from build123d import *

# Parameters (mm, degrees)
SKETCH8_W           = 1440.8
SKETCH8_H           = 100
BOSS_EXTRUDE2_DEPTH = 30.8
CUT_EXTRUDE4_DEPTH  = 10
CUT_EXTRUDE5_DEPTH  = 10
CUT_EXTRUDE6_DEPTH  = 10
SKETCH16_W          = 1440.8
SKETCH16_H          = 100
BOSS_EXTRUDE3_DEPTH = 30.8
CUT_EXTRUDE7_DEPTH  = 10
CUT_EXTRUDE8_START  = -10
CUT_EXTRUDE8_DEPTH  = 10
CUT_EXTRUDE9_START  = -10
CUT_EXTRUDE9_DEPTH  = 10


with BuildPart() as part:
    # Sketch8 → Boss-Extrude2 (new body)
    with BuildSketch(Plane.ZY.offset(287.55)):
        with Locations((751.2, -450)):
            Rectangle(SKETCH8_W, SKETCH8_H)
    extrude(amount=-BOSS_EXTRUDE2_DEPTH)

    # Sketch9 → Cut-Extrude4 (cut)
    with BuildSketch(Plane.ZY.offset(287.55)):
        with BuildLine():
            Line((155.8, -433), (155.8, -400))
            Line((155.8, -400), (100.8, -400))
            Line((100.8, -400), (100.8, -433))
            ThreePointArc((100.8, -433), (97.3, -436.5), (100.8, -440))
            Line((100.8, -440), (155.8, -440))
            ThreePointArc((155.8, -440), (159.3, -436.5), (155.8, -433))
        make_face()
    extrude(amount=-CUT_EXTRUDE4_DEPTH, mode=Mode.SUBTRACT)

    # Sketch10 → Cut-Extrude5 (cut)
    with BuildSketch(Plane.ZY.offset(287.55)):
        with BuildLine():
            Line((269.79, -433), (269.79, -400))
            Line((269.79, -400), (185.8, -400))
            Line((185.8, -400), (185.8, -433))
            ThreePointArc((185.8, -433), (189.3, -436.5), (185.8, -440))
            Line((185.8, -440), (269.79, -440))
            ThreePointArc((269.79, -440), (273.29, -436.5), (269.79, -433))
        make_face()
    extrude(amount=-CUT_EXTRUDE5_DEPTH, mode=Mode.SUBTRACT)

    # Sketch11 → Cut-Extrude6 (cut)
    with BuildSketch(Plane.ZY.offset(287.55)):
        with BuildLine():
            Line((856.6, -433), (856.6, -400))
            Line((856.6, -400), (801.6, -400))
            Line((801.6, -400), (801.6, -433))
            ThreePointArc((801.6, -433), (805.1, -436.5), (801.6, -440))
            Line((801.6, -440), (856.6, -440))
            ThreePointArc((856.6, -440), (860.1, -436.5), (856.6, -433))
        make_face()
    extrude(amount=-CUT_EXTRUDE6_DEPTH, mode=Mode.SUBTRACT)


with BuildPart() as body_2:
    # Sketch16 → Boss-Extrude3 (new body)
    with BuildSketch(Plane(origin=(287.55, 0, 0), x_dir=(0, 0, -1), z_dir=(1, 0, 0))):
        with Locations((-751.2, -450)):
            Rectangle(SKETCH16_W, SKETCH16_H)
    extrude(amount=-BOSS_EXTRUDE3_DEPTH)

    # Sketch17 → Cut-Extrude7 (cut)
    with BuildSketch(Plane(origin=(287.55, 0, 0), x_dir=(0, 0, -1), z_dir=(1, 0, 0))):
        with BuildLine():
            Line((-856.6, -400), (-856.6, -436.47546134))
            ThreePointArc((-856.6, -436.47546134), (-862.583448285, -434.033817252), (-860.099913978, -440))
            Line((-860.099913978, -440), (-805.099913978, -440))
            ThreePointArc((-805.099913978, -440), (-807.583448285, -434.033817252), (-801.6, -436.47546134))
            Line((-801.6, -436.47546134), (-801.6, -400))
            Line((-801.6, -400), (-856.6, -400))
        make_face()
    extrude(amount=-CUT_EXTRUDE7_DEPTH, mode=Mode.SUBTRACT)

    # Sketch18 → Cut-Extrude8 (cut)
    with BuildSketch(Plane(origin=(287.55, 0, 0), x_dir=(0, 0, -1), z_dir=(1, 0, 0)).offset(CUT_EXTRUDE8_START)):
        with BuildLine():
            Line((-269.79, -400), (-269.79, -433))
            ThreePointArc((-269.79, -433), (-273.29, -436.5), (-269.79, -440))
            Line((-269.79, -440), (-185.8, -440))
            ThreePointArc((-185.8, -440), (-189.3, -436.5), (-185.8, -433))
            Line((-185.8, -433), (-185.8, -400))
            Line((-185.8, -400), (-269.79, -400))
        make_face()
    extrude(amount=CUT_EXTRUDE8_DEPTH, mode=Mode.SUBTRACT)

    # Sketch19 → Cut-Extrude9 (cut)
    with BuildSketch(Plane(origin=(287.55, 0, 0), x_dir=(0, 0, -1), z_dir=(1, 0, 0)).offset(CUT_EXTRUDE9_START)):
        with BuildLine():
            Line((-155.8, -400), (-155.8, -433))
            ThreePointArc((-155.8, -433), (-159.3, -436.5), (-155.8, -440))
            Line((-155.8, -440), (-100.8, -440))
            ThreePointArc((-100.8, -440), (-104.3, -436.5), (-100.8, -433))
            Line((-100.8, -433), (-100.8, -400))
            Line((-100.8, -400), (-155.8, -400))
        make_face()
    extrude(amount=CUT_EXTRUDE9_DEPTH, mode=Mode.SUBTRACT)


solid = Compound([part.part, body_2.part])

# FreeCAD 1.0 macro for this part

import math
import FreeCAD as App
import Part
import Sketcher

V = App.Vector
Q = App.Units.Quantity


def add_polygon(sketch, points):
    """Adds a closed chain of lines whose ends are joined by coincident constraints."""
    first, n = sketch.GeometryCount, len(points)
    for a, b in zip(points, points[1:] + points[:1]):
        sketch.addGeometry(Part.LineSegment(App.Vector(*a, 0), App.Vector(*b, 0)), False)
    for i in range(n):
        sketch.addConstraint(Sketcher.Constraint("Coincident", first + i, 2, first + (i + 1) % n, 1))

doc = App.newDocument("Part")
body = doc.addObject("PartDesign::Body", "Body")

sketch1 = doc.addObject("Sketcher::SketchObject", "Sketch")
body.addObject(sketch1)
sketch1.AttachmentSupport = (doc.YZ_Plane, [""])
sketch1.MapMode = "FlatFace"
sketch1.AttachmentOffset = App.Placement(V(0, 0, -287.55), App.Rotation())
add_polygon(sketch1, [(-400, 30.8), (-500, 30.8), (-500, 1471.6), (-400, 1471.6)])
sketch1.addConstraint([
    Sketcher.Constraint("Horizontal", 0),
    Sketcher.Constraint("Vertical", 1),
    Sketcher.Constraint("Horizontal", 2),
    Sketcher.Constraint("Vertical", 3),
    Sketcher.Constraint("DistanceX", 0, 2, 0, 1, Q("100 mm")),
    Sketcher.Constraint("DistanceY", 1, 1, 1, 2, Q("1440.8 mm")),
    Sketcher.Constraint("DistanceX", 0, 2, -1, 1, Q("500 mm")),
    Sketcher.Constraint("DistanceY", -1, 1, 0, 2, Q("30.8 mm")),
])
pad1 = doc.addObject("PartDesign::Pad", "Pad")
body.addObject(pad1)
pad1.Profile = sketch1
pad1.Length = 30.8

sketch2 = doc.addObject("Sketcher::SketchObject", "Sketch001")
body.addObject(sketch2)
sketch2.AttachmentSupport = (doc.YZ_Plane, [""])
sketch2.MapMode = "FlatFace"
sketch2.AttachmentOffset = App.Placement(V(0, 0, -287.55), App.Rotation())
sketch2.addGeometry([
    Part.LineSegment(V(-433, 155.8, 0), V(-400, 155.8, 0)),
    Part.LineSegment(V(-400, 155.8, 0), V(-400, 100.8, 0)),
    Part.LineSegment(V(-400, 100.8, 0), V(-433, 100.8, 0)),
    Part.ArcOfCircle(Part.Circle(V(-436.5, 100.8, 0), V(0, 0, 1), 3.5), math.radians(180), math.radians(360)),
    Part.LineSegment(V(-440, 100.8, 0), V(-440, 155.8, 0)),
    Part.ArcOfCircle(Part.Circle(V(-436.5, 155.8, 0), V(0, 0, 1), 3.5), math.radians(0), math.radians(180)),
], False)
sketch2.addConstraint([
    Sketcher.Constraint("Coincident", 0, 2, 1, 1),
    Sketcher.Constraint("Coincident", 1, 2, 2, 1),
    Sketcher.Constraint("Coincident", 2, 2, 3, 2),
    Sketcher.Constraint("Tangent", 3, 1, 4, 1),
    Sketcher.Constraint("Tangent", 4, 2, 5, 2),
    Sketcher.Constraint("Coincident", 5, 1, 0, 1),
    Sketcher.Constraint("Horizontal", 0),
    Sketcher.Constraint("Vertical", 1),
    Sketcher.Constraint("Horizontal", 2),
    Sketcher.Constraint("Vertical", 4),
    Sketcher.Constraint("Equal", 3, 5),
    Sketcher.Constraint("Horizontal", 5, 3, 0, 2),
    Sketcher.Constraint("Horizontal", 3, 3, 1, 2),
    Sketcher.Constraint("Radius", 3, Q("3.5 mm")),
    Sketcher.Constraint("DistanceX", 0, 1, 0, 2, Q("33 mm")),
    Sketcher.Constraint("DistanceY", 1, 2, 1, 1, Q("55 mm")),
    Sketcher.Constraint("DistanceX", 0, 2, -1, 1, Q("400 mm")),
    Sketcher.Constraint("DistanceY", -1, 1, 3, 3, Q("100.8 mm")),
])
pocket1 = doc.addObject("PartDesign::Pocket", "Pocket")
body.addObject(pocket1)
pocket1.Profile = sketch2
pocket1.Length = 10
pocket1.Reversed = True

sketch3 = doc.addObject("Sketcher::SketchObject", "Sketch002")
body.addObject(sketch3)
sketch3.AttachmentSupport = (doc.YZ_Plane, [""])
sketch3.MapMode = "FlatFace"
sketch3.AttachmentOffset = App.Placement(V(0, 0, -287.55), App.Rotation())
sketch3.addGeometry([
    Part.LineSegment(V(-433, 269.79, 0), V(-400, 269.79, 0)),
    Part.LineSegment(V(-400, 269.79, 0), V(-400, 185.8, 0)),
    Part.LineSegment(V(-400, 185.8, 0), V(-433, 185.8, 0)),
    Part.ArcOfCircle(Part.Circle(V(-436.5, 185.8, 0), V(0, 0, 1), 3.5), math.radians(0), math.radians(180)),
    Part.LineSegment(V(-440, 185.8, 0), V(-440, 269.79, 0)),
    Part.ArcOfCircle(Part.Circle(V(-436.5, 269.79, 0), V(0, 0, 1), 3.5), math.radians(0), math.radians(180)),
], False)
sketch3.addConstraint([
    Sketcher.Constraint("Coincident", 0, 2, 1, 1),
    Sketcher.Constraint("Coincident", 1, 2, 2, 1),
    Sketcher.Constraint("Coincident", 2, 2, 3, 1),
    Sketcher.Constraint("Tangent", 3, 2, 4, 1),
    Sketcher.Constraint("Tangent", 4, 2, 5, 2),
    Sketcher.Constraint("Coincident", 5, 1, 0, 1),
    Sketcher.Constraint("Horizontal", 0),
    Sketcher.Constraint("Vertical", 1),
    Sketcher.Constraint("Horizontal", 2),
    Sketcher.Constraint("Vertical", 4),
    Sketcher.Constraint("Equal", 3, 5),
    Sketcher.Constraint("Horizontal", 5, 3, 0, 2),
    Sketcher.Constraint("Horizontal", 3, 3, 1, 2),
    Sketcher.Constraint("Radius", 3, Q("3.5 mm")),
    Sketcher.Constraint("DistanceX", 0, 1, 0, 2, Q("33 mm")),
    Sketcher.Constraint("DistanceX", 0, 2, -1, 1, Q("400 mm")),
    Sketcher.Constraint("DistanceY", 1, 2, 1, 1, Q("83.99 mm")),
    Sketcher.Constraint("DistanceY", -1, 1, 3, 3, Q("185.8 mm")),
])
pocket2 = doc.addObject("PartDesign::Pocket", "Pocket001")
body.addObject(pocket2)
pocket2.Profile = sketch3
pocket2.Length = 10
pocket2.Reversed = True

sketch4 = doc.addObject("Sketcher::SketchObject", "Sketch003")
body.addObject(sketch4)
sketch4.AttachmentSupport = (doc.YZ_Plane, [""])
sketch4.MapMode = "FlatFace"
sketch4.AttachmentOffset = App.Placement(V(0, 0, -287.55), App.Rotation())
sketch4.addGeometry([
    Part.LineSegment(V(-433, 856.6, 0), V(-400, 856.6, 0)),
    Part.LineSegment(V(-400, 856.6, 0), V(-400, 801.6, 0)),
    Part.LineSegment(V(-400, 801.6, 0), V(-433, 801.6, 0)),
    Part.ArcOfCircle(Part.Circle(V(-436.5, 801.6, 0), V(0, 0, 1), 3.5), math.radians(0), math.radians(180)),
    Part.LineSegment(V(-440, 801.6, 0), V(-440, 856.6, 0)),
    Part.ArcOfCircle(Part.Circle(V(-436.5, 856.6, 0), V(0, 0, 1), 3.5), math.radians(0), math.radians(180)),
], False)
sketch4.addConstraint([
    Sketcher.Constraint("Coincident", 0, 2, 1, 1),
    Sketcher.Constraint("Coincident", 1, 2, 2, 1),
    Sketcher.Constraint("Coincident", 2, 2, 3, 1),
    Sketcher.Constraint("Tangent", 3, 2, 4, 1),
    Sketcher.Constraint("Tangent", 4, 2, 5, 2),
    Sketcher.Constraint("Coincident", 5, 1, 0, 1),
    Sketcher.Constraint("Horizontal", 0),
    Sketcher.Constraint("Vertical", 1),
    Sketcher.Constraint("Horizontal", 2),
    Sketcher.Constraint("Vertical", 4),
    Sketcher.Constraint("Equal", 3, 5),
    Sketcher.Constraint("Horizontal", 5, 3, 0, 2),
    Sketcher.Constraint("Horizontal", 3, 3, 1, 2),
    Sketcher.Constraint("Radius", 3, Q("3.5 mm")),
    Sketcher.Constraint("DistanceX", 0, 1, 0, 2, Q("33 mm")),
    Sketcher.Constraint("DistanceY", 1, 2, 1, 1, Q("55 mm")),
    Sketcher.Constraint("DistanceX", 0, 2, -1, 1, Q("400 mm")),
    Sketcher.Constraint("DistanceY", -1, 1, 3, 3, Q("801.6 mm")),
])
pocket3 = doc.addObject("PartDesign::Pocket", "Pocket002")
body.addObject(pocket3)
pocket3.Profile = sketch4
pocket3.Length = 10
pocket3.Reversed = True
body2 = doc.addObject("PartDesign::Body", "Body001")

sketch5 = doc.addObject("Sketcher::SketchObject", "Sketch004")
body2.addObject(sketch5)
sketch5.AttachmentSupport = (doc.getObject("YZ_Plane001"), [""])
sketch5.MapMode = "FlatFace"
sketch5.AttachmentOffset = App.Placement(V(0, 0, 287.55), App.Rotation())
add_polygon(sketch5, [(-400, 1471.6), (-500, 1471.6), (-500, 30.8), (-400, 30.8)])
sketch5.addConstraint([
    Sketcher.Constraint("Horizontal", 0),
    Sketcher.Constraint("Vertical", 1),
    Sketcher.Constraint("Horizontal", 2),
    Sketcher.Constraint("Vertical", 3),
    Sketcher.Constraint("DistanceX", 0, 2, 0, 1, Q("100 mm")),
    Sketcher.Constraint("DistanceY", 1, 2, 1, 1, Q("1440.8 mm")),
    Sketcher.Constraint("DistanceX", 0, 2, -1, 1, Q("500 mm")),
    Sketcher.Constraint("DistanceY", -1, 1, 0, 2, Q("1471.6 mm")),
])
pad2 = doc.addObject("PartDesign::Pad", "Pad001")
body2.addObject(pad2)
pad2.Profile = sketch5
pad2.Length = 30.8
pad2.Reversed = True

sketch6 = doc.addObject("Sketcher::SketchObject", "Sketch005")
body2.addObject(sketch6)
sketch6.AttachmentSupport = (doc.getObject("YZ_Plane001"), [""])
sketch6.MapMode = "FlatFace"
sketch6.AttachmentOffset = App.Placement(V(0, 0, 287.55), App.Rotation())
sketch6.addGeometry([
    Part.LineSegment(V(-400, 856.6, 0), V(-436.475461, 856.6, 0)),
    Part.ArcOfCircle(Part.Circle(V(-436.5, 860.099914, 0), V(0, 0, 1), 3.5), math.radians(-89.598293), math.radians(180)),
    Part.LineSegment(V(-440, 860.099914, 0), V(-440, 805.099914, 0)),
    Part.ArcOfCircle(Part.Circle(V(-436.5, 805.099914, 0), V(0, 0, 1), 3.5), math.radians(-89.598293), math.radians(180)),
    Part.LineSegment(V(-436.475461, 801.6, 0), V(-400, 801.6, 0)),
    Part.LineSegment(V(-400, 801.6, 0), V(-400, 856.6, 0)),
], False)
sketch6.addConstraint([
    Sketcher.Constraint("Coincident", 0, 2, 1, 1),
    Sketcher.Constraint("Tangent", 1, 2, 2, 1),
    Sketcher.Constraint("Tangent", 2, 2, 3, 2),
    Sketcher.Constraint("Coincident", 3, 1, 4, 1),
    Sketcher.Constraint("Coincident", 4, 2, 5, 1),
    Sketcher.Constraint("Coincident", 5, 2, 0, 1),
    Sketcher.Constraint("Horizontal", 0),
    Sketcher.Constraint("Vertical", 2),
    Sketcher.Constraint("Horizontal", 4),
    Sketcher.Constraint("Vertical", 5),
    Sketcher.Constraint("Equal", 1, 3),
    Sketcher.Constraint("Vertical", 0, 2, 3, 1),
    Sketcher.Constraint("Radius", 1, Q("3.5 mm")),
    Sketcher.Constraint("DistanceY", 2, 2, 2, 1, Q("55 mm")),
    Sketcher.Constraint("DistanceX", 1, 2, -1, 1, Q("440 mm")),
    Sketcher.Constraint("DistanceX", 4, 2, -1, 1, Q("400 mm")),
    Sketcher.Constraint("DistanceY", -1, 1, 0, 2, Q("856.6 mm")),
    Sketcher.Constraint("DistanceX", 0, 2, 0, 1, Q("36.475461 mm")),
])
pocket4 = doc.addObject("PartDesign::Pocket", "Pocket003")
body2.addObject(pocket4)
pocket4.Profile = sketch6
pocket4.Length = 10

sketch7 = doc.addObject("Sketcher::SketchObject", "Sketch006")
body2.addObject(sketch7)
sketch7.AttachmentSupport = (doc.getObject("YZ_Plane001"), [""])
sketch7.MapMode = "FlatFace"
sketch7.AttachmentOffset = App.Placement(V(0, 0, 277.55), App.Rotation())
sketch7.addGeometry([
    Part.LineSegment(V(-400, 269.79, 0), V(-433, 269.79, 0)),
    Part.ArcOfCircle(Part.Circle(V(-436.5, 269.79, 0), V(0, 0, 1), 3.5), math.radians(0), math.radians(180)),
    Part.LineSegment(V(-440, 269.79, 0), V(-440, 185.8, 0)),
    Part.ArcOfCircle(Part.Circle(V(-436.5, 185.8, 0), V(0, 0, 1), 3.5), math.radians(0), math.radians(180)),
    Part.LineSegment(V(-433, 185.8, 0), V(-400, 185.8, 0)),
    Part.LineSegment(V(-400, 185.8, 0), V(-400, 269.79, 0)),
], False)
sketch7.addConstraint([
    Sketcher.Constraint("Coincident", 0, 2, 1, 1),
    Sketcher.Constraint("Tangent", 1, 2, 2, 1),
    Sketcher.Constraint("Tangent", 2, 2, 3, 2),
    Sketcher.Constraint("Coincident", 3, 1, 4, 1),
    Sketcher.Constraint("Coincident", 4, 2, 5, 1),
    Sketcher.Constraint("Coincident", 5, 2, 0, 1),
    Sketcher.Constraint("Horizontal", 0),
    Sketcher.Constraint("Vertical", 2),
    Sketcher.Constraint("Horizontal", 4),
    Sketcher.Constraint("Vertical", 5),
    Sketcher.Constraint("Equal", 1, 3),
    Sketcher.Constraint("Horizontal", 1, 3, 0, 2),
    Sketcher.Constraint("Horizontal", 2, 2, 3, 1),
    Sketcher.Constraint("Radius", 1, Q("3.5 mm")),
    Sketcher.Constraint("DistanceX", 0, 2, 0, 1, Q("33 mm")),
    Sketcher.Constraint("DistanceX", 0, 2, -1, 1, Q("433 mm")),
    Sketcher.Constraint("DistanceY", 2, 2, 2, 1, Q("83.99 mm")),
    Sketcher.Constraint("DistanceY", -1, 1, 3, 3, Q("185.8 mm")),
])
pocket5 = doc.addObject("PartDesign::Pocket", "Pocket004")
body2.addObject(pocket5)
pocket5.Profile = sketch7
pocket5.Length = 10
pocket5.Reversed = True

sketch8 = doc.addObject("Sketcher::SketchObject", "Sketch007")
body2.addObject(sketch8)
sketch8.AttachmentSupport = (doc.getObject("YZ_Plane001"), [""])
sketch8.MapMode = "FlatFace"
sketch8.AttachmentOffset = App.Placement(V(0, 0, 277.55), App.Rotation())
sketch8.addGeometry([
    Part.LineSegment(V(-400, 155.8, 0), V(-433, 155.8, 0)),
    Part.ArcOfCircle(Part.Circle(V(-436.5, 155.8, 0), V(0, 0, 1), 3.5), math.radians(0), math.radians(180)),
    Part.LineSegment(V(-440, 155.8, 0), V(-440, 100.8, 0)),
    Part.ArcOfCircle(Part.Circle(V(-436.5, 100.8, 0), V(0, 0, 1), 3.5), math.radians(0), math.radians(180)),
    Part.LineSegment(V(-433, 100.8, 0), V(-400, 100.8, 0)),
    Part.LineSegment(V(-400, 100.8, 0), V(-400, 155.8, 0)),
], False)
sketch8.addConstraint([
    Sketcher.Constraint("Coincident", 0, 2, 1, 1),
    Sketcher.Constraint("Tangent", 1, 2, 2, 1),
    Sketcher.Constraint("Tangent", 2, 2, 3, 2),
    Sketcher.Constraint("Coincident", 3, 1, 4, 1),
    Sketcher.Constraint("Coincident", 4, 2, 5, 1),
    Sketcher.Constraint("Coincident", 5, 2, 0, 1),
    Sketcher.Constraint("Horizontal", 0),
    Sketcher.Constraint("Vertical", 2),
    Sketcher.Constraint("Horizontal", 4),
    Sketcher.Constraint("Vertical", 5),
    Sketcher.Constraint("Equal", 1, 3),
    Sketcher.Constraint("Horizontal", 1, 3, 0, 2),
    Sketcher.Constraint("Horizontal", 2, 2, 3, 1),
    Sketcher.Constraint("Radius", 1, Q("3.5 mm")),
    Sketcher.Constraint("DistanceX", 0, 2, 0, 1, Q("33 mm")),
    Sketcher.Constraint("DistanceY", 2, 2, 2, 1, Q("55 mm")),
    Sketcher.Constraint("DistanceX", 0, 2, -1, 1, Q("433 mm")),
    Sketcher.Constraint("DistanceY", -1, 1, 1, 3, Q("155.8 mm")),
])
pocket6 = doc.addObject("PartDesign::Pocket", "Pocket005")
body2.addObject(pocket6)
pocket6.Profile = sketch8
pocket6.Length = 10
pocket6.Reversed = True

doc.recompute()
